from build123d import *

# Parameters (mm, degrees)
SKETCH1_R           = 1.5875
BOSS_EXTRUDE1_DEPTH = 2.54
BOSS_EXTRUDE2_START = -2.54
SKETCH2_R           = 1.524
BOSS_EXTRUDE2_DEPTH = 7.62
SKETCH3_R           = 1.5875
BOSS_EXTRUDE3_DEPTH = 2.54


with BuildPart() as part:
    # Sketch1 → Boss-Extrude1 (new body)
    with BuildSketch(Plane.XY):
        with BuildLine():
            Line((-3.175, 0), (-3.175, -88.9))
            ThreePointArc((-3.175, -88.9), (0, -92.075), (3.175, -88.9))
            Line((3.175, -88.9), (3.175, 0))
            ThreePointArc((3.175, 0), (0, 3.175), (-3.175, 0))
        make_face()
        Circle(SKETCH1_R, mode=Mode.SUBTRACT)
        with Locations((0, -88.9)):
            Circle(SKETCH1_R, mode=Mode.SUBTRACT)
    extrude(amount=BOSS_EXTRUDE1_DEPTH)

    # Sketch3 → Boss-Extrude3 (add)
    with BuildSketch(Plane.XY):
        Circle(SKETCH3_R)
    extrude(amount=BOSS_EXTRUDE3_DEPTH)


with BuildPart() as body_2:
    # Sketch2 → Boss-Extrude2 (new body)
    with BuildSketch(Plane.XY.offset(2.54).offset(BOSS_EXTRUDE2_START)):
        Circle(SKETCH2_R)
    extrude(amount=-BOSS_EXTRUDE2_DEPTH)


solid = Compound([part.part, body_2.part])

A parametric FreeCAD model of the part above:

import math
import FreeCAD as App
import Part
import Sketcher
Q = App.Units.Quantity

doc = App.newDocument("Part")
params = doc.addObject("Spreadsheet::Sheet", "Params")
for row, (alias, value) in enumerate([
    ("sketch1_diameter", "0.125 in"),
    ("sketch1_height", "3.5 in"),
    ("sketch1_radius", "0.125 in"),
    ("pad1_length", "0.1 in"),
    ("sketch2_diameter", "0.125 in"),
    ("pad2_length", "0.1 in"),
    ("sketch3_diameter", "0.12 in"),
    ("pad3_length", "0.3 in"),
], start=1):
    params.set(f"A{row}", alias)
    params.set(f"B{row}", "=" + value)
    params.setAlias(f"B{row}", alias)

body = doc.addObject("PartDesign::Body", "Body")

# Sketch on XY plane
sketch1 = doc.addObject("Sketcher::SketchObject", "Sketch")
body.addObject(sketch1)
sketch1.AttachmentSupport = (doc.XY_Plane, [""])
sketch1.MapMode = "FlatFace"
sketch1.addGeometry([
    Part.LineSegment(App.Vector(-3.2, 0, 0), App.Vector(-3.2, -88.9, 0)),  # 0
    Part.ArcOfCircle(Part.Circle(App.Vector(0, -88.9, 0), App.Vector(0, 0, 1), 3.2), math.radians(180), math.radians(360)),  # 1
    Part.LineSegment(App.Vector(3.2, -88.9, 0), App.Vector(3.2, 0, 0)),  # 2
    Part.ArcOfCircle(Part.Circle(App.Vector(0, 0, 0), App.Vector(0, 0, 1), 3.2), math.radians(0), math.radians(180)),  # 3
    Part.Circle(App.Vector(0, -88.9, 0), App.Vector(0, 0, 1), 1.6),  # 4
    Part.Circle(App.Vector(0, 0, 0), App.Vector(0, 0, 1), 1.6),  # 5
], False)
sketch1.addConstraint([
    Sketcher.Constraint("Tangent", 0, 2, 1, 1),
    Sketcher.Constraint("Tangent", 1, 2, 2, 1),
    Sketcher.Constraint("Tangent", 2, 2, 3, 1),
    Sketcher.Constraint("Tangent", 3, 2, 0, 1),
    Sketcher.Constraint("Vertical", 0),
    Sketcher.Constraint("Vertical", 2),
    Sketcher.Constraint("Coincident", 3, 3, -1, 1),
    Sketcher.Constraint("Coincident", 5, 3, -1, 1),
    Sketcher.Constraint("Coincident", 4, 3, 1, 3),
    Sketcher.Constraint("Equal", 4, 5),
    Sketcher.Constraint("Diameter", 4, Q("0.125 in")),
    Sketcher.Constraint("DistanceY", 0, 2, 0, 1, Q("3.5 in")),
    Sketcher.Constraint("Radius", 1, Q("0.125 in")),
])
sketch1.setExpression("Constraints[10]", "Params.sketch1_diameter")
sketch1.setExpression("Constraints[11]", "Params.sketch1_height")
sketch1.setExpression("Constraints[12]", "Params.sketch1_radius")
pad1 = doc.addObject("PartDesign::Pad", "Pad")
body.addObject(pad1)
pad1.Profile = sketch1
pad1.setExpression("Length", "Params.pad1_length")

# Sketch on XY plane
sketch2 = doc.addObject("Sketcher::SketchObject", "Sketch001")
body.addObject(sketch2)
sketch2.AttachmentSupport = (doc.XY_Plane, [""])
sketch2.MapMode = "FlatFace"
sketch2.addGeometry(Part.Circle(App.Vector(0, 0, 0), App.Vector(0, 0, 1), 1.6), False)
sketch2.addConstraint([
    Sketcher.Constraint("Coincident", 0, 3, -1, 1),
    Sketcher.Constraint("Diameter", 0, Q("0.125 in")),
])
sketch2.setExpression("Constraints[1]", "Params.sketch2_diameter")
pad2 = doc.addObject("PartDesign::Pad", "Pad001")
body.addObject(pad2)
pad2.Profile = sketch2
pad2.setExpression("Length", "Params.pad2_length")
body2 = doc.addObject("PartDesign::Body", "Body001")

# Sketch on XY plane
sketch3 = doc.addObject("Sketcher::SketchObject", "Sketch002")
body2.addObject(sketch3)
sketch3.AttachmentSupport = (doc.getObject("XY_Plane001"), [""])
sketch3.MapMode = "FlatFace"
sketch3.addGeometry(Part.Circle(App.Vector(0, 0, 0), App.Vector(0, 0, 1), 1.5), False)
sketch3.addConstraint([
    Sketcher.Constraint("Coincident", 0, 3, -1, 1),
    Sketcher.Constraint("Diameter", 0, Q("0.12 in")),
])
sketch3.setExpression("Constraints[1]", "Params.sketch3_diameter")
pad3 = doc.addObject("PartDesign::Pad", "Pad002")
body2.addObject(pad3)
pad3.Profile = sketch3
pad3.setExpression("Length", "Params.pad3_length")
pad3.Reversed = True

doc.recompute()
